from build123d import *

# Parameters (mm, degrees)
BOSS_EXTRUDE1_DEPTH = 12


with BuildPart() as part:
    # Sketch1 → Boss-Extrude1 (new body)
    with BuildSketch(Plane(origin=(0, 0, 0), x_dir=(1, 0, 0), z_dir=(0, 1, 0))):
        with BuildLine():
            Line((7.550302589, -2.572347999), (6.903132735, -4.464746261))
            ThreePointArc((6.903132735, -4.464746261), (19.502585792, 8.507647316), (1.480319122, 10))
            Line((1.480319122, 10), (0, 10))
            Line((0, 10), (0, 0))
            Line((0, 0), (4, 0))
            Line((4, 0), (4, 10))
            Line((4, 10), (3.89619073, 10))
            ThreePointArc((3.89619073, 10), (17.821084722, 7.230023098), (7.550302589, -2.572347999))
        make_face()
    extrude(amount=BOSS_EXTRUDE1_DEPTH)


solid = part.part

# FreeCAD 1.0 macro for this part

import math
import FreeCAD as App
import Part
import Sketcher
from FreeCAD import Vector
Q = App.Units.Quantity

doc = App.newDocument("Part")
body = doc.addObject("PartDesign::Body", "Body")

sketch1 = body.newObject("Sketcher::SketchObject", "Sketch")
sketch1.AttachmentSupport = (doc.getObject("XZ_Plane"), [""])
sketch1.MapMode = "FlatFace"
sketch1.addGeometry([
    Part.LineSegment(Vector(7.550303, 2.572348, 0), Vector(6.903133, 4.464746, 0)),
    Part.ArcOfCircle(Part.Circle(Vector(10.138982, -4.997245, 0), Vector(0, 0, 1), 10), math.radians(-149.981772), math.radians(108.879865)),
    Part.LineSegment(Vector(1.480319, -10, 0), Vector(0, -10, 0)),
    Part.LineSegment(Vector(0, -10, 0), Vector(0, 0, 0)),
    Part.LineSegment(Vector(0, 0, 0), Vector(4, 0, 0)),
    Part.LineSegment(Vector(4, 0, 0), Vector(4, -10, 0)),
    Part.LineSegment(Vector(4, -10, 0), Vector(3.896191, -10, 0)),
    Part.ArcOfCircle(Part.Circle(Vector(10.138982, -4.997245, 0), Vector(0, 0, 1), 8), math.radians(-141.292532), math.radians(108.879865)),
], False)
sketch1.addConstraint([
    Sketcher.Constraint("Coincident", 0, 2, 1, 2),
    Sketcher.Constraint("Coincident", 1, 1, 2, 1),
    Sketcher.Constraint("Coincident", 2, 2, 3, 1),
    Sketcher.Constraint("Coincident", 3, 2, 4, 1),
    Sketcher.Constraint("Coincident", 4, 2, 5, 1),
    Sketcher.Constraint("Coincident", 5, 2, 6, 1),
    Sketcher.Constraint("Coincident", 6, 2, 7, 1),
    Sketcher.Constraint("Coincident", 7, 2, 0, 1),
    Sketcher.Constraint("Horizontal", 2),
    Sketcher.Constraint("Vertical", 3),
    Sketcher.Constraint("Horizontal", 4),
    Sketcher.Constraint("Vertical", 5),
    Sketcher.Constraint("Horizontal", 6),
    Sketcher.Constraint("Coincident", 3, 2, -1, 1),
    Sketcher.Constraint("Coincident", 7, 3, 1, 3),
    Sketcher.Constraint("Horizontal", 2, 2, 5, 2),
    Sketcher.Constraint("Radius", 1, Q("10 mm")),
    Sketcher.Constraint("Radius", 7, Q("8 mm")),
    Sketcher.Constraint("DistanceX", 4, 1, 4, 2, Q("4 mm")),
    Sketcher.Constraint("DistanceY", 3, 1, 3, 2, Q("10 mm")),
    Sketcher.Constraint("DistanceX", 2, 2, 2, 1, Q("1.480319 mm")),
    Sketcher.Constraint("DistanceX", 6, 2, 6, 1, Q("0.103809 mm")),
    Sketcher.Constraint("DistanceY", 7, 2, 0, 2, Q("1.892398 mm")),
    Sketcher.Constraint("DistanceX", 0, 2, 1, 3, Q("3.235849 mm")),
])
pad1 = body.newObject("PartDesign::Pad", "Pad")
pad1.Profile = sketch1
pad1.Length = 12
pad1.Reversed = True

doc.recompute()
